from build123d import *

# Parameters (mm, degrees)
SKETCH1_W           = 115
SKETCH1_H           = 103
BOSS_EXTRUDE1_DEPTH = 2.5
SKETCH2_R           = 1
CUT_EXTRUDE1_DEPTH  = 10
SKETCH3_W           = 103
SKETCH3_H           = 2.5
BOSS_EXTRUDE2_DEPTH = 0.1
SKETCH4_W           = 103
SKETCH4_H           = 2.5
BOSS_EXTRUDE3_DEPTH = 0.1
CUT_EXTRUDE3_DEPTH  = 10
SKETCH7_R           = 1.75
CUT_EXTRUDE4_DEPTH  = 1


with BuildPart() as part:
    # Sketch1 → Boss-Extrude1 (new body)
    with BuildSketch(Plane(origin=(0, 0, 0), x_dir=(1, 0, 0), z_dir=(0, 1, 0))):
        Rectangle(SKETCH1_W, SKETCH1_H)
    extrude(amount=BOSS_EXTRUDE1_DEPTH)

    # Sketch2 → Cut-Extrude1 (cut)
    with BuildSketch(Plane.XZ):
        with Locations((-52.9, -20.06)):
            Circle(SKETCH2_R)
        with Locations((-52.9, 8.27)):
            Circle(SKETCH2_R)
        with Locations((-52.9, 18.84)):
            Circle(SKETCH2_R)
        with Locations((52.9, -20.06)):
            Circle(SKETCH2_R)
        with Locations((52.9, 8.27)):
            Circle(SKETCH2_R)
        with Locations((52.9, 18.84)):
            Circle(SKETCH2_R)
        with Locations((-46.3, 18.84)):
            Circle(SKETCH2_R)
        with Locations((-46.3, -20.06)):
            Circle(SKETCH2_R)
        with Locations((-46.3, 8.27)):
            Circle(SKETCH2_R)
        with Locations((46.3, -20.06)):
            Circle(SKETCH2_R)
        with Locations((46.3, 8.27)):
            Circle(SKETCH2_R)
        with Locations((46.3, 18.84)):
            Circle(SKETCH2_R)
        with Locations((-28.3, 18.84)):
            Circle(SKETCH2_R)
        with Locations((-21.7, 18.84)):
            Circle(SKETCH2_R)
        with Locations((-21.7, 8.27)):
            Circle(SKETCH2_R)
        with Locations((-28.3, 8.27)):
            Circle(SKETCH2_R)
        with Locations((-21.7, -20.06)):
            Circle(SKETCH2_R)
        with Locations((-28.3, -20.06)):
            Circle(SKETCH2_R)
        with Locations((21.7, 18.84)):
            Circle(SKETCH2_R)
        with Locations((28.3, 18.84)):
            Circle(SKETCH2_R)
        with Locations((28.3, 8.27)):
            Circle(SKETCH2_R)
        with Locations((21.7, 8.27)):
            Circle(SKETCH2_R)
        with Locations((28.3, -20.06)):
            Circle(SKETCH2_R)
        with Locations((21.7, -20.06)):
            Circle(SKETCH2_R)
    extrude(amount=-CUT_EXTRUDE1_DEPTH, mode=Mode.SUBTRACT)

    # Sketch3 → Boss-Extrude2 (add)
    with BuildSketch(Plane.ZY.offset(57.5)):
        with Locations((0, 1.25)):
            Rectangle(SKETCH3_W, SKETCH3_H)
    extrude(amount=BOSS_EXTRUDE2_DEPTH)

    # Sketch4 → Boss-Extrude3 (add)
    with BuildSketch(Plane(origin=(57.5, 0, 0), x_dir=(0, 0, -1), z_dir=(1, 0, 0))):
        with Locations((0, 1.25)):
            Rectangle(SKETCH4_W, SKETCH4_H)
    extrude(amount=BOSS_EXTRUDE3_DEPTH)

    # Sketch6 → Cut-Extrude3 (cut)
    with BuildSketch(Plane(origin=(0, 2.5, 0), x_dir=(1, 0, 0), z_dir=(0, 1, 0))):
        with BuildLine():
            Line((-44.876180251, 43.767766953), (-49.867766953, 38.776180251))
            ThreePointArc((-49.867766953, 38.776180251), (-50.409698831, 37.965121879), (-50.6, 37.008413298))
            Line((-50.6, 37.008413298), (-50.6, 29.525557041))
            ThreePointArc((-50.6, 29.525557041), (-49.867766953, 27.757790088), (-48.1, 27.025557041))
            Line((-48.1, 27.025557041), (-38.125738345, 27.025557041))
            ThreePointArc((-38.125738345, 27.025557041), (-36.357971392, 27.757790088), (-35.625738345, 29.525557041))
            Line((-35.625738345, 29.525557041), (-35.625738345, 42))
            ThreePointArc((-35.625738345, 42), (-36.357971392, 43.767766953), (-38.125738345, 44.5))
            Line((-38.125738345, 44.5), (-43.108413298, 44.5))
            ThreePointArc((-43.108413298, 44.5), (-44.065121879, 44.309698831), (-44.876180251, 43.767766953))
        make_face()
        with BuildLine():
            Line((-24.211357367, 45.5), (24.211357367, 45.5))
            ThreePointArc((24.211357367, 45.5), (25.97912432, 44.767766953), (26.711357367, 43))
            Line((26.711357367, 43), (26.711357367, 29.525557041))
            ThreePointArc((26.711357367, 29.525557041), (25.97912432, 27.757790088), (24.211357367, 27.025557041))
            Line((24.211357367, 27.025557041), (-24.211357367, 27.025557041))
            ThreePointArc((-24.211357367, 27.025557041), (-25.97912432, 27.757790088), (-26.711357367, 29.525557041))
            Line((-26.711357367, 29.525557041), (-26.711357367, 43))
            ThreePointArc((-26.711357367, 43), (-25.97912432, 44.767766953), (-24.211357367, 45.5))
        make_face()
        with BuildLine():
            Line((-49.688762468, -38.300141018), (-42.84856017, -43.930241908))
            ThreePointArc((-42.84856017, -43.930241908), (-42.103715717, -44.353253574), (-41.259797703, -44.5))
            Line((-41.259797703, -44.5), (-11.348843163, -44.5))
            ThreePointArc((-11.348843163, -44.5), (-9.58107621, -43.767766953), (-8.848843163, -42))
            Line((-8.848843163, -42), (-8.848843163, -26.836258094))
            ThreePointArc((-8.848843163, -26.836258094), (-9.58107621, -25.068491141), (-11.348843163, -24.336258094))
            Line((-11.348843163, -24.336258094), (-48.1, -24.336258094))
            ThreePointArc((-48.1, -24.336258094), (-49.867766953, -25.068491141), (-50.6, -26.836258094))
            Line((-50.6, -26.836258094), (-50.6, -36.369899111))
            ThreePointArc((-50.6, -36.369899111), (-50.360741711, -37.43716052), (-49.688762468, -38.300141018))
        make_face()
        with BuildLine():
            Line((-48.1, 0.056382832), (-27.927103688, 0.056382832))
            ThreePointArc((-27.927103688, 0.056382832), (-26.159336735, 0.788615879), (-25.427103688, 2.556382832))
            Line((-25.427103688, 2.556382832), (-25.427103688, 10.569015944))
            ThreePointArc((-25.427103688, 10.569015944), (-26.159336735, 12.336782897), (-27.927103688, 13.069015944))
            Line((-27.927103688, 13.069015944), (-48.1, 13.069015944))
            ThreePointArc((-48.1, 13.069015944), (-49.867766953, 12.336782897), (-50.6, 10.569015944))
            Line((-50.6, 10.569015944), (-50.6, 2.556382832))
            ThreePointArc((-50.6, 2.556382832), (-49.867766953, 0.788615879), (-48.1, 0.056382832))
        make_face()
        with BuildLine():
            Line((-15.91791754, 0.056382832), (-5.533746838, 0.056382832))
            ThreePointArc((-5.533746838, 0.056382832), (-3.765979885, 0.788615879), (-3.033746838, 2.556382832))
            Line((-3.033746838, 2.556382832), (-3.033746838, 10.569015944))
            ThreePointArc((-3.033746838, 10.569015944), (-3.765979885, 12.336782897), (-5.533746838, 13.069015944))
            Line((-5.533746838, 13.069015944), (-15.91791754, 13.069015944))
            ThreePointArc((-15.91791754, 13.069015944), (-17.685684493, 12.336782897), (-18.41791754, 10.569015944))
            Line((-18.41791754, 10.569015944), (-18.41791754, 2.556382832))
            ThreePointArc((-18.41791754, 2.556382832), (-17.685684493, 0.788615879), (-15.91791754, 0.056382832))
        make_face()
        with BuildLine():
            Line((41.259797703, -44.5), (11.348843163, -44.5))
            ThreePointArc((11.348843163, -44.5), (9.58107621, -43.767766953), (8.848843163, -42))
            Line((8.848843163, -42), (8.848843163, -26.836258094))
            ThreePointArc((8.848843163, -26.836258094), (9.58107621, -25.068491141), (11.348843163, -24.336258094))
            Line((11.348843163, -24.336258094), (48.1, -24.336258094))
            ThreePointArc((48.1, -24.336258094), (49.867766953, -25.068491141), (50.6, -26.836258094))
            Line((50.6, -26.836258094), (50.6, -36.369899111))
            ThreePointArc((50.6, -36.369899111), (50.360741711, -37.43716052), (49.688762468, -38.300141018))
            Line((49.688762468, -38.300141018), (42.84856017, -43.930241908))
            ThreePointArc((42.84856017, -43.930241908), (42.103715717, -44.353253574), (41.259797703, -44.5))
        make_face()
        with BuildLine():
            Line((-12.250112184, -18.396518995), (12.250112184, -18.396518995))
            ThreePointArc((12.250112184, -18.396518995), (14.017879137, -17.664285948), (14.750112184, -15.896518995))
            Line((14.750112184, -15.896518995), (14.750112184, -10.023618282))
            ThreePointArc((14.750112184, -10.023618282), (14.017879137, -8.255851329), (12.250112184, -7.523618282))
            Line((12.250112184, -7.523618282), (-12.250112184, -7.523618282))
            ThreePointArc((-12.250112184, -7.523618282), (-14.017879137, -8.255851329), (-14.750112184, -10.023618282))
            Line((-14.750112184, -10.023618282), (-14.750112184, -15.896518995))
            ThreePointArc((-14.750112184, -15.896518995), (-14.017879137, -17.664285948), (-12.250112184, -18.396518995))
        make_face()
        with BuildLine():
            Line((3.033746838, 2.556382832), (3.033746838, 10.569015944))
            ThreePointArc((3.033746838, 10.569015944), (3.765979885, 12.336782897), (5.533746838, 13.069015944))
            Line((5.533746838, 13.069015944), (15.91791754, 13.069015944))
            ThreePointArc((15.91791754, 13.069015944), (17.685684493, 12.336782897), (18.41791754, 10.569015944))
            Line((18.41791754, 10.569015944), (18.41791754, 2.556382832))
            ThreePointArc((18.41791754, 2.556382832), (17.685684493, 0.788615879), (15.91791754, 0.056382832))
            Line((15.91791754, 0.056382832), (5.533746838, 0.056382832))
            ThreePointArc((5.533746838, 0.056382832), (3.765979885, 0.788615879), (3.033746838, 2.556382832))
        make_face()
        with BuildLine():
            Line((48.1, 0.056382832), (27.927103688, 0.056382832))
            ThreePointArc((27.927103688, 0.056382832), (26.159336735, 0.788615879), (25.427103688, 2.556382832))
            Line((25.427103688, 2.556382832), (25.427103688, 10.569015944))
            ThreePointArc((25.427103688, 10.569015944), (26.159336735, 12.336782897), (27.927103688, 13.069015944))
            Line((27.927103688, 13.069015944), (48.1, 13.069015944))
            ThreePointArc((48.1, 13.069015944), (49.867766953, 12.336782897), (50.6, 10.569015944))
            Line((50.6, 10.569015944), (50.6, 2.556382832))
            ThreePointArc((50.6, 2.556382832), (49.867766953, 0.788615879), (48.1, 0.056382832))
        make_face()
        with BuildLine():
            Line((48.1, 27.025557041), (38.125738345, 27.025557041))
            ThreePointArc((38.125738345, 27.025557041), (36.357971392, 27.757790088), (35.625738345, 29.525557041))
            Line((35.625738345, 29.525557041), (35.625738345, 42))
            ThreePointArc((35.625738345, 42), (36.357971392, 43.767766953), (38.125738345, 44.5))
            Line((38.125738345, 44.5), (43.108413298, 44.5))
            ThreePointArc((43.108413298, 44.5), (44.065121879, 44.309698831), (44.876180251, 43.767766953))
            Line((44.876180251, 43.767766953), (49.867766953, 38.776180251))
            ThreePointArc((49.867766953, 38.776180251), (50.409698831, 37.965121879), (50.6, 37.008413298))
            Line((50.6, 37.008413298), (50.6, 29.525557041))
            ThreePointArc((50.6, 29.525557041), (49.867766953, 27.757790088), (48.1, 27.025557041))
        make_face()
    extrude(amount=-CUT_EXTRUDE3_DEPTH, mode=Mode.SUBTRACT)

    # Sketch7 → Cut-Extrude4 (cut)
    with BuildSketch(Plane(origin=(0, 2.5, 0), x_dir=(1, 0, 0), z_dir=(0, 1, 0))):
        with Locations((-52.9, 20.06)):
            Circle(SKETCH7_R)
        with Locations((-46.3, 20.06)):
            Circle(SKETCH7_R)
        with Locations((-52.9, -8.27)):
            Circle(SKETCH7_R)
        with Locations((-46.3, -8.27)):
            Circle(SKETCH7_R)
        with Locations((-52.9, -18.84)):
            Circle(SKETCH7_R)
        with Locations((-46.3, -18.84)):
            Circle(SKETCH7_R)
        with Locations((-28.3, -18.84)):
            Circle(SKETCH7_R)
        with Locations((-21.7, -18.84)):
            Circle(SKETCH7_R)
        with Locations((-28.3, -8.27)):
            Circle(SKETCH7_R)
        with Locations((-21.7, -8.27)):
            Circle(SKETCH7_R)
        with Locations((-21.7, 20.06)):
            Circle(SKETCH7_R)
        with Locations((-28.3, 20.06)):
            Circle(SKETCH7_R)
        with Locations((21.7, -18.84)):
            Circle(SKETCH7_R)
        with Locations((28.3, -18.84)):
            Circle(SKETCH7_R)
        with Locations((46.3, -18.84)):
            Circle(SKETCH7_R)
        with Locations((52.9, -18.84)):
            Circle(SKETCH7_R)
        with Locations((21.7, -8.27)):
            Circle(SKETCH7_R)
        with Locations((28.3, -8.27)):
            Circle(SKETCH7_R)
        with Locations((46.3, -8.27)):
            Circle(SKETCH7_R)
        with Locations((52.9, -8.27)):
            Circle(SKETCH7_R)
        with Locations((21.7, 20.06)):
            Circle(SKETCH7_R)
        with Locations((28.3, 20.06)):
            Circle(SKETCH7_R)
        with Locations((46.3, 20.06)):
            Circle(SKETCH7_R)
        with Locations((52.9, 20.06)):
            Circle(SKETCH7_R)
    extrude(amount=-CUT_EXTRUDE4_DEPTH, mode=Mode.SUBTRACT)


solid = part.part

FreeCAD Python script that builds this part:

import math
import FreeCAD as App
import Part
import Sketcher


def add_polygon(sketch, points):
    """Adds a closed chain of lines whose ends are joined by coincident constraints."""
    first, n = sketch.GeometryCount, len(points)
    for a, b in zip(points, points[1:] + points[:1]):
        sketch.addGeometry(Part.LineSegment(App.Vector(*a, 0), App.Vector(*b, 0)), False)
    for i in range(n):
        sketch.addConstraint(Sketcher.Constraint("Coincident", first + i, 2, first + (i + 1) % n, 1))

doc = App.newDocument("Part")
body = doc.addObject("PartDesign::Body", "Body")

sketch1 = body.newObject("Sketcher::SketchObject", "Sketch")
sketch1.AttachmentSupport = (doc.getObject("XZ_Plane"), [""])
sketch1.MapMode = "FlatFace"
add_polygon(sketch1, [(-58, -52), (-58, 52), (58, 52), (58, -52)])
sketch1.addConstraint(Sketcher.Constraint("Vertical", 0))
sketch1.addConstraint(Sketcher.Constraint("Horizontal", 1))
sketch1.addConstraint(Sketcher.Constraint("Vertical", 2))
sketch1.addConstraint(Sketcher.Constraint("Horizontal", 3))
sketch1.addConstraint(Sketcher.Constraint("Symmetric", 0, 2, 2, 2, -1, 1))
sketch1.addConstraint(Sketcher.Constraint("DistanceX", 1, 1, 1, 2, 115.0))
sketch1.addConstraint(Sketcher.Constraint("DistanceY", 0, 1, 0, 2, 103.0))
pad1 = body.newObject("PartDesign::Pad", "Pad")
pad1.Profile = sketch1
pad1.Length = 2.5
pad1.Reversed = True

sketch2 = body.newObject("Sketcher::SketchObject", "Sketch001")
sketch2.AttachmentSupport = (doc.getObject("XZ_Plane"), [""])
sketch2.MapMode = "FlatFace"
sketch2.addGeometry(Part.Circle(App.Vector(-52.9, -20.1, 0), App.Vector(0, 0, 1), 1), False)
sketch2.addGeometry(Part.Circle(App.Vector(-52.9, 8.3, 0), App.Vector(0, 0, 1), 1), False)
sketch2.addGeometry(Part.Circle(App.Vector(-52.9, 18.8, 0), App.Vector(0, 0, 1), 1), False)
sketch2.addGeometry(Part.Circle(App.Vector(52.9, -20.1, 0), App.Vector(0, 0, 1), 1), False)
sketch2.addGeometry(Part.Circle(App.Vector(52.9, 8.3, 0), App.Vector(0, 0, 1), 1), False)
sketch2.addGeometry(Part.Circle(App.Vector(52.9, 18.8, 0), App.Vector(0, 0, 1), 1), False)
sketch2.addGeometry(Part.Circle(App.Vector(-46.3, 18.8, 0), App.Vector(0, 0, 1), 1), False)
sketch2.addGeometry(Part.Circle(App.Vector(-46.3, -20.1, 0), App.Vector(0, 0, 1), 1), False)
sketch2.addGeometry(Part.Circle(App.Vector(-46.3, 8.3, 0), App.Vector(0, 0, 1), 1), False)
sketch2.addGeometry(Part.Circle(App.Vector(46.3, -20.1, 0), App.Vector(0, 0, 1), 1), False)
sketch2.addGeometry(Part.Circle(App.Vector(46.3, 8.3, 0), App.Vector(0, 0, 1), 1), False)
sketch2.addGeometry(Part.Circle(App.Vector(46.3, 18.8, 0), App.Vector(0, 0, 1), 1), False)
sketch2.addGeometry(Part.Circle(App.Vector(-28.3, 18.8, 0), App.Vector(0, 0, 1), 1), False)
sketch2.addGeometry(Part.Circle(App.Vector(-21.7, 18.8, 0), App.Vector(0, 0, 1), 1), False)
sketch2.addGeometry(Part.Circle(App.Vector(-21.7, 8.3, 0), App.Vector(0, 0, 1), 1), False)
sketch2.addGeometry(Part.Circle(App.Vector(-28.3, 8.3, 0), App.Vector(0, 0, 1), 1), False)
sketch2.addGeometry(Part.Circle(App.Vector(-21.7, -20.1, 0), App.Vector(0, 0, 1), 1), False)
sketch2.addGeometry(Part.Circle(App.Vector(-28.3, -20.1, 0), App.Vector(0, 0, 1), 1), False)
sketch2.addGeometry(Part.Circle(App.Vector(21.7, 18.8, 0), App.Vector(0, 0, 1), 1), False)
sketch2.addGeometry(Part.Circle(App.Vector(28.3, 18.8, 0), App.Vector(0, 0, 1), 1), False)
sketch2.addGeometry(Part.Circle(App.Vector(28.3, 8.3, 0), App.Vector(0, 0, 1), 1), False)
sketch2.addGeometry(Part.Circle(App.Vector(21.7, 8.3, 0), App.Vector(0, 0, 1), 1), False)
sketch2.addGeometry(Part.Circle(App.Vector(28.3, -20.1, 0), App.Vector(0, 0, 1), 1), False)
sketch2.addGeometry(Part.Circle(App.Vector(21.7, -20.1, 0), App.Vector(0, 0, 1), 1), False)
sketch2.addConstraint(Sketcher.Constraint("Equal", 0, 1))
sketch2.addConstraint(Sketcher.Constraint("Equal", 1, 2))
sketch2.addConstraint(Sketcher.Constraint("Equal", 2, 3))
sketch2.addConstraint(Sketcher.Constraint("Equal", 3, 4))
sketch2.addConstraint(Sketcher.Constraint("Equal", 4, 5))
sketch2.addConstraint(Sketcher.Constraint("Equal", 5, 6))
sketch2.addConstraint(Sketcher.Constraint("Equal", 6, 7))
sketch2.addConstraint(Sketcher.Constraint("Equal", 7, 8))
sketch2.addConstraint(Sketcher.Constraint("Equal", 8, 9))
sketch2.addConstraint(Sketcher.Constraint("Equal", 9, 10))
sketch2.addConstraint(Sketcher.Constraint("Equal", 10, 11))
sketch2.addConstraint(Sketcher.Constraint("Equal", 11, 12))
sketch2.addConstraint(Sketcher.Constraint("Equal", 12, 13))
sketch2.addConstraint(Sketcher.Constraint("Equal", 13, 14))
sketch2.addConstraint(Sketcher.Constraint("Equal", 14, 15))
sketch2.addConstraint(Sketcher.Constraint("Equal", 15, 16))
sketch2.addConstraint(Sketcher.Constraint("Equal", 16, 17))
sketch2.addConstraint(Sketcher.Constraint("Equal", 17, 18))
sketch2.addConstraint(Sketcher.Constraint("Equal", 18, 19))
sketch2.addConstraint(Sketcher.Constraint("Equal", 19, 20))
sketch2.addConstraint(Sketcher.Constraint("Equal", 20, 21))
sketch2.addConstraint(Sketcher.Constraint("Equal", 21, 22))
sketch2.addConstraint(Sketcher.Constraint("Equal", 22, 23))
sketch2.addConstraint(Sketcher.Constraint("Symmetric", 0, 3, 3, 3, -2))
sketch2.addConstraint(Sketcher.Constraint("Symmetric", 1, 3, 4, 3, -2))
sketch2.addConstraint(Sketcher.Constraint("Symmetric", 2, 3, 5, 3, -2))
sketch2.addConstraint(Sketcher.Constraint("Symmetric", 7, 3, 9, 3, -2))
sketch2.addConstraint(Sketcher.Constraint("Symmetric", 8, 3, 10, 3, -2))
sketch2.addConstraint(Sketcher.Constraint("Symmetric", 6, 3, 11, 3, -2))
sketch2.addConstraint(Sketcher.Constraint("Symmetric", 13, 3, 18, 3, -2))
sketch2.addConstraint(Sketcher.Constraint("Symmetric", 12, 3, 19, 3, -2))
sketch2.addConstraint(Sketcher.Constraint("Symmetric", 15, 3, 20, 3, -2))
sketch2.addConstraint(Sketcher.Constraint("Symmetric", 14, 3, 21, 3, -2))
sketch2.addConstraint(Sketcher.Constraint("Symmetric", 17, 3, 22, 3, -2))
sketch2.addConstraint(Sketcher.Constraint("Symmetric", 16, 3, 23, 3, -2))
sketch2.addConstraint(Sketcher.Constraint("Horizontal", 5, 3, 6, 3))
sketch2.addConstraint(Sketcher.Constraint("Horizontal", 3, 3, 7, 3))
sketch2.addConstraint(Sketcher.Constraint("Horizontal", 4, 3, 8, 3))
sketch2.addConstraint(Sketcher.Constraint("Horizontal", 11, 3, 12, 3))
sketch2.addConstraint(Sketcher.Constraint("Horizontal", 12, 3, 13, 3))
sketch2.addConstraint(Sketcher.Constraint("Horizontal", 10, 3, 14, 3))
sketch2.addConstraint(Sketcher.Constraint("Horizontal", 14, 3, 15, 3))
sketch2.addConstraint(Sketcher.Constraint("Horizontal", 9, 3, 16, 3))
sketch2.addConstraint(Sketcher.Constraint("Horizontal", 16, 3, 17, 3))
sketch2.addConstraint(Sketcher.Constraint("Vertical", 0, 3, 1, 3))
sketch2.addConstraint(Sketcher.Constraint("Vertical", 1, 3, 2, 3))
sketch2.addConstraint(Sketcher.Constraint("Vertical", 6, 3, 7, 3))
sketch2.addConstraint(Sketcher.Constraint("Vertical", 7, 3, 8, 3))
sketch2.addConstraint(Sketcher.Constraint("Vertical", 13, 3, 14, 3))
sketch2.addConstraint(Sketcher.Constraint("Vertical", 12, 3, 15, 3))
sketch2.addConstraint(Sketcher.Constraint("Vertical", 14, 3, 16, 3))
sketch2.addConstraint(Sketcher.Constraint("Vertical", 15, 3, 17, 3))
sketch2.addConstraint(Sketcher.Constraint("Diameter", 0, 2.0))
sketch2.addConstraint(Sketcher.Constraint("DistanceX", 6, 3, 12, 3, 18.0))
sketch2.addConstraint(Sketcher.Constraint("DistanceX", 0, 3, -1, 1, 52.9))
sketch2.addConstraint(Sketcher.Constraint("DistanceX", 6, 3, -1, 1, 46.3))
sketch2.addConstraint(Sketcher.Constraint("DistanceX", 13, 3, -1, 1, 21.7))
sketch2.addConstraint(Sketcher.Constraint("DistanceY", 0, 3, 2, 3, 38.9))
sketch2.addConstraint(Sketcher.Constraint("DistanceY", 0, 3, -1, 1, 20.06))
sketch2.addConstraint(Sketcher.Constraint("DistanceY", -1, 1, 1, 3, 8.27))
pocket1 = body.newObject("PartDesign::Pocket", "Pocket")
pocket1.Profile = sketch2
pocket1.Length = 10

sketch3 = body.newObject("Sketcher::SketchObject", "Sketch002")
sketch3.AttachmentSupport = (doc.getObject("YZ_Plane"), [""])
sketch3.MapMode = "FlatFace"
sketch3.AttachmentOffset = App.Placement(App.Vector(0, 0, -57.5), App.Rotation())
add_polygon(sketch3, [(2.5, -51.5), (0, -51.5), (0, 51.5), (2.5, 51.5)])
sketch3.addConstraint(Sketcher.Constraint("Horizontal", 0))
sketch3.addConstraint(Sketcher.Constraint("Vertical", 1))
sketch3.addConstraint(Sketcher.Constraint("Horizontal", 2))
sketch3.addConstraint(Sketcher.Constraint("Vertical", 3))
sketch3.addConstraint(Sketcher.Constraint("Symmetric", 0, 2, 1, 2, -1, 1))
sketch3.addConstraint(Sketcher.Constraint("DistanceY", 1, 1, 1, 2, 103.0))
sketch3.addConstraint(Sketcher.Constraint("DistanceX", 0, 2, 0, 1, 2.5))
pad2 = body.newObject("PartDesign::Pad", "Pad001")
pad2.Profile = sketch3
pad2.Length = 0.1
pad2.Reversed = True

sketch4 = body.newObject("Sketcher::SketchObject", "Sketch003")
sketch4.AttachmentSupport = (doc.getObject("YZ_Plane"), [""])
sketch4.MapMode = "FlatFace"
sketch4.AttachmentOffset = App.Placement(App.Vector(0, 0, 57.5), App.Rotation())
add_polygon(sketch4, [(2.5, 51.5), (0, 51.5), (0, -51.5), (2.5, -51.5)])
sketch4.addConstraint(Sketcher.Constraint("Horizontal", 0))
sketch4.addConstraint(Sketcher.Constraint("Vertical", 1))
sketch4.addConstraint(Sketcher.Constraint("Horizontal", 2))
sketch4.addConstraint(Sketcher.Constraint("Vertical", 3))
sketch4.addConstraint(Sketcher.Constraint("Symmetric", 0, 2, 1, 2, -1, 1))
sketch4.addConstraint(Sketcher.Constraint("DistanceY", 1, 2, 1, 1, 103.0))
sketch4.addConstraint(Sketcher.Constraint("DistanceX", 0, 2, 0, 1, 2.5))
pad3 = body.newObject("PartDesign::Pad", "Pad002")
pad3.Profile = sketch4
pad3.Length = 0.1

sketch5 = body.newObject("Sketcher::SketchObject", "Sketch004")
sketch5.AttachmentSupport = (doc.getObject("XZ_Plane"), [""])
sketch5.MapMode = "FlatFace"
sketch5.AttachmentOffset = App.Placement(App.Vector(0, 0, -2.5), App.Rotation())
sketch5.addGeometry(Part.LineSegment(App.Vector(-44.9, -43.8, 0), App.Vector(-49.9, -38.8, 0)), False)
sketch5.addGeometry(Part.ArcOfCircle(Part.Circle(App.Vector(-48.1, -37, 0), App.Vector(0, 0, 1), 2.5), math.radians(-180), math.radians(-135)), False)
sketch5.addGeometry(Part.LineSegment(App.Vector(-50.6, -37, 0), App.Vector(-50.6, -29.5, 0)), False)
sketch5.addGeometry(Part.ArcOfCircle(Part.Circle(App.Vector(-48.1, -29.5, 0), App.Vector(0, 0, 1), 2.5), math.radians(90), math.radians(180)), False)
sketch5.addGeometry(Part.LineSegment(App.Vector(-48.1, -27, 0), App.Vector(-38.1, -27, 0)), False)
sketch5.addGeometry(Part.ArcOfCircle(Part.Circle(App.Vector(-38.1, -29.5, 0), App.Vector(0, 0, 1), 2.5), math.radians(0), math.radians(90)), False)
sketch5.addGeometry(Part.LineSegment(App.Vector(-35.6, -29.5, 0), App.Vector(-35.6, -42, 0)), False)
sketch5.addGeometry(Part.ArcOfCircle(Part.Circle(App.Vector(-38.1, -42, 0), App.Vector(0, 0, 1), 2.5), math.radians(-90), math.radians(0)), False)
sketch5.addGeometry(Part.LineSegment(App.Vector(-38.1, -44.5, 0), App.Vector(-43.1, -44.5, 0)), False)
sketch5.addGeometry(Part.ArcOfCircle(Part.Circle(App.Vector(-43.1, -42, 0), App.Vector(0, 0, 1), 2.5), math.radians(-135), math.radians(-90)), False)
sketch5.addGeometry(Part.LineSegment(App.Vector(24.2, -45.5, 0), App.Vector(-24.2, -45.5, 0)), False)
sketch5.addGeometry(Part.ArcOfCircle(Part.Circle(App.Vector(-24.2, -43, 0), App.Vector(0, 0, 1), 2.5), math.radians(180), math.radians(270)), False)
sketch5.addGeometry(Part.LineSegment(App.Vector(-26.7, -43, 0), App.Vector(-26.7, -29.5, 0)), False)
sketch5.addGeometry(Part.ArcOfCircle(Part.Circle(App.Vector(-24.2, -29.5, 0), App.Vector(0, 0, 1), 2.5), math.radians(90), math.radians(180)), False)
sketch5.addGeometry(Part.LineSegment(App.Vector(-24.2, -27, 0), App.Vector(24.2, -27, 0)), False)
sketch5.addGeometry(Part.ArcOfCircle(Part.Circle(App.Vector(24.2, -29.5, 0), App.Vector(0, 0, 1), 2.5), math.radians(0), math.radians(90)), False)
sketch5.addGeometry(Part.LineSegment(App.Vector(26.7, -29.5, 0), App.Vector(26.7, -43, 0)), False)
sketch5.addGeometry(Part.ArcOfCircle(Part.Circle(App.Vector(24.2, -43, 0), App.Vector(0, 0, 1), 2.5), math.radians(-90), math.radians(0)), False)
sketch5.addGeometry(Part.LineSegment(App.Vector(-49.7, 38.3, 0), App.Vector(-42.8, 43.9, 0)), False)
sketch5.addGeometry(Part.ArcOfCircle(Part.Circle(App.Vector(-41.3, 42, 0), App.Vector(0, 0, 1), 2.5), math.radians(90), math.radians(129)), False)
sketch5.addGeometry(Part.LineSegment(App.Vector(-41.3, 44.5, 0), App.Vector(-11.3, 44.5, 0)), False)
sketch5.addGeometry(Part.ArcOfCircle(Part.Circle(App.Vector(-11.3, 42, 0), App.Vector(0, 0, 1), 2.5), math.radians(0), math.radians(90)), False)
sketch5.addGeometry(Part.LineSegment(App.Vector(-8.8, 42, 0), App.Vector(-8.8, 26.8, 0)), False)
sketch5.addGeometry(Part.ArcOfCircle(Part.Circle(App.Vector(-11.3, 26.8, 0), App.Vector(0, 0, 1), 2.5), math.radians(-90), math.radians(0)), False)
sketch5.addGeometry(Part.LineSegment(App.Vector(-11.3, 24.3, 0), App.Vector(-48.1, 24.3, 0)), False)
sketch5.addGeometry(Part.ArcOfCircle(Part.Circle(App.Vector(-48.1, 26.8, 0), App.Vector(0, 0, 1), 2.5), math.radians(180), math.radians(270)), False)
sketch5.addGeometry(Part.LineSegment(App.Vector(-50.6, 26.8, 0), App.Vector(-50.6, 36.4, 0)), False)
sketch5.addGeometry(Part.ArcOfCircle(Part.Circle(App.Vector(-48.1, 36.4, 0), App.Vector(0, 0, 1), 2.5), math.radians(129), math.radians(180)), False)
sketch5.addGeometry(Part.LineSegment(App.Vector(-48.1, -0.1, 0), App.Vector(-27.9, -0.1, 0)), False)
sketch5.addGeometry(Part.ArcOfCircle(Part.Circle(App.Vector(-27.9, -2.6, 0), App.Vector(0, 0, 1), 2.5), math.radians(0), math.radians(90)), False)
sketch5.addGeometry(Part.LineSegment(App.Vector(-25.4, -2.6, 0), App.Vector(-25.4, -10.6, 0)), False)
sketch5.addGeometry(Part.ArcOfCircle(Part.Circle(App.Vector(-27.9, -10.6, 0), App.Vector(0, 0, 1), 2.5), math.radians(-90), math.radians(0)), False)
sketch5.addGeometry(Part.LineSegment(App.Vector(-27.9, -13.1, 0), App.Vector(-48.1, -13.1, 0)), False)
sketch5.addGeometry(Part.ArcOfCircle(Part.Circle(App.Vector(-48.1, -10.6, 0), App.Vector(0, 0, 1), 2.5), math.radians(180), math.radians(270)), False)
sketch5.addGeometry(Part.LineSegment(App.Vector(-50.6, -10.6, 0), App.Vector(-50.6, -2.6, 0)), False)
sketch5.addGeometry(Part.ArcOfCircle(Part.Circle(App.Vector(-48.1, -2.6, 0), App.Vector(0, 0, 1), 2.5), math.radians(90), math.radians(180)), False)
sketch5.addGeometry(Part.LineSegment(App.Vector(-15.9, -0.1, 0), App.Vector(-5.5, -0.1, 0)), False)
sketch5.addGeometry(Part.ArcOfCircle(Part.Circle(App.Vector(-5.5, -2.6, 0), App.Vector(0, 0, 1), 2.5), math.radians(0), math.radians(90)), False)
sketch5.addGeometry(Part.LineSegment(App.Vector(-3, -2.6, 0), App.Vector(-3, -10.6, 0)), False)
sketch5.addGeometry(Part.ArcOfCircle(Part.Circle(App.Vector(-5.5, -10.6, 0), App.Vector(0, 0, 1), 2.5), math.radians(-90), math.radians(0)), False)
sketch5.addGeometry(Part.LineSegment(App.Vector(-5.5, -13.1, 0), App.Vector(-15.9, -13.1, 0)), False)
sketch5.addGeometry(Part.ArcOfCircle(Part.Circle(App.Vector(-15.9, -10.6, 0), App.Vector(0, 0, 1), 2.5), math.radians(180), math.radians(270)), False)
sketch5.addGeometry(Part.LineSegment(App.Vector(-18.4, -10.6, 0), App.Vector(-18.4, -2.6, 0)), False)
sketch5.addGeometry(Part.ArcOfCircle(Part.Circle(App.Vector(-15.9, -2.6, 0), App.Vector(0, 0, 1), 2.5), math.radians(90), math.radians(180)), False)
sketch5.addGeometry(Part.LineSegment(App.Vector(11.3, 44.5, 0), App.Vector(41.3, 44.5, 0)), False)
sketch5.addGeometry(Part.ArcOfCircle(Part.Circle(App.Vector(41.3, 42, 0), App.Vector(0, 0, 1), 2.5), math.radians(51), math.radians(90)), False)
sketch5.addGeometry(Part.LineSegment(App.Vector(42.8, 43.9, 0), App.Vector(49.7, 38.3, 0)), False)
sketch5.addGeometry(Part.ArcOfCircle(Part.Circle(App.Vector(48.1, 36.4, 0), App.Vector(0, 0, 1), 2.5), math.radians(0), math.radians(51)), False)
sketch5.addGeometry(Part.LineSegment(App.Vector(50.6, 36.4, 0), App.Vector(50.6, 26.8, 0)), False)
sketch5.addGeometry(Part.ArcOfCircle(Part.Circle(App.Vector(48.1, 26.8, 0), App.Vector(0, 0, 1), 2.5), math.radians(-90), math.radians(0)), False)
sketch5.addGeometry(Part.LineSegment(App.Vector(48.1, 24.3, 0), App.Vector(11.3, 24.3, 0)), False)
sketch5.addGeometry(Part.ArcOfCircle(Part.Circle(App.Vector(11.3, 26.8, 0), App.Vector(0, 0, 1), 2.5), math.radians(180), math.radians(270)), False)
sketch5.addGeometry(Part.LineSegment(App.Vector(8.8, 26.8, 0), App.Vector(8.8, 42, 0)), False)
sketch5.addGeometry(Part.ArcOfCircle(Part.Circle(App.Vector(11.3, 42, 0), App.Vector(0, 0, 1), 2.5), math.radians(90), math.radians(180)), False)
sketch5.addGeometry(Part.LineSegment(App.Vector(-12.3, 18.4, 0), App.Vector(12.3, 18.4, 0)), False)
sketch5.addGeometry(Part.ArcOfCircle(Part.Circle(App.Vector(12.3, 15.9, 0), App.Vector(0, 0, 1), 2.5), math.radians(0), math.radians(90)), False)
sketch5.addGeometry(Part.LineSegment(App.Vector(14.8, 15.9, 0), App.Vector(14.8, 10, 0)), False)
sketch5.addGeometry(Part.ArcOfCircle(Part.Circle(App.Vector(12.3, 10, 0), App.Vector(0, 0, 1), 2.5), math.radians(-90), math.radians(0)), False)
sketch5.addGeometry(Part.LineSegment(App.Vector(12.3, 7.5, 0), App.Vector(-12.3, 7.5, 0)), False)
sketch5.addGeometry(Part.ArcOfCircle(Part.Circle(App.Vector(-12.3, 10, 0), App.Vector(0, 0, 1), 2.5), math.radians(180), math.radians(270)), False)
sketch5.addGeometry(Part.LineSegment(App.Vector(-14.8, 10, 0), App.Vector(-14.8, 15.9, 0)), False)
sketch5.addGeometry(Part.ArcOfCircle(Part.Circle(App.Vector(-12.3, 15.9, 0), App.Vector(0, 0, 1), 2.5), math.radians(90), math.radians(180)), False)
sketch5.addGeometry(Part.LineSegment(App.Vector(3, -10.6, 0), App.Vector(3, -2.6, 0)), False)
sketch5.addGeometry(Part.ArcOfCircle(Part.Circle(App.Vector(5.5, -2.6, 0), App.Vector(0, 0, 1), 2.5), math.radians(90), math.radians(180)), False)
sketch5.addGeometry(Part.LineSegment(App.Vector(5.5, -0.1, 0), App.Vector(15.9, -0.1, 0)), False)
sketch5.addGeometry(Part.ArcOfCircle(Part.Circle(App.Vector(15.9, -2.6, 0), App.Vector(0, 0, 1), 2.5), math.radians(0), math.radians(90)), False)
sketch5.addGeometry(Part.LineSegment(App.Vector(18.4, -2.6, 0), App.Vector(18.4, -10.6, 0)), False)
sketch5.addGeometry(Part.ArcOfCircle(Part.Circle(App.Vector(15.9, -10.6, 0), App.Vector(0, 0, 1), 2.5), math.radians(-90), math.radians(0)), False)
sketch5.addGeometry(Part.LineSegment(App.Vector(15.9, -13.1, 0), App.Vector(5.5, -13.1, 0)), False)
sketch5.addGeometry(Part.ArcOfCircle(Part.Circle(App.Vector(5.5, -10.6, 0), App.Vector(0, 0, 1), 2.5), math.radians(180), math.radians(270)), False)
sketch5.addGeometry(Part.LineSegment(App.Vector(27.9, -0.1, 0), App.Vector(48.1, -0.1, 0)), False)
sketch5.addGeometry(Part.ArcOfCircle(Part.Circle(App.Vector(48.1, -2.6, 0), App.Vector(0, 0, 1), 2.5), math.radians(0), math.radians(90)), False)
sketch5.addGeometry(Part.LineSegment(App.Vector(50.6, -2.6, 0), App.Vector(50.6, -10.6, 0)), False)
sketch5.addGeometry(Part.ArcOfCircle(Part.Circle(App.Vector(48.1, -10.6, 0), App.Vector(0, 0, 1), 2.5), math.radians(-90), math.radians(0)), False)
sketch5.addGeometry(Part.LineSegment(App.Vector(48.1, -13.1, 0), App.Vector(27.9, -13.1, 0)), False)
sketch5.addGeometry(Part.ArcOfCircle(Part.Circle(App.Vector(27.9, -10.6, 0), App.Vector(0, 0, 1), 2.5), math.radians(180), math.radians(270)), False)
sketch5.addGeometry(Part.LineSegment(App.Vector(25.4, -10.6, 0), App.Vector(25.4, -2.6, 0)), False)
sketch5.addGeometry(Part.ArcOfCircle(Part.Circle(App.Vector(27.9, -2.6, 0), App.Vector(0, 0, 1), 2.5), math.radians(90), math.radians(180)), False)
sketch5.addGeometry(Part.LineSegment(App.Vector(38.1, -27, 0), App.Vector(48.1, -27, 0)), False)
sketch5.addGeometry(Part.ArcOfCircle(Part.Circle(App.Vector(48.1, -29.5, 0), App.Vector(0, 0, 1), 2.5), math.radians(0), math.radians(90)), False)
sketch5.addGeometry(Part.LineSegment(App.Vector(50.6, -29.5, 0), App.Vector(50.6, -37, 0)), False)
sketch5.addGeometry(Part.ArcOfCircle(Part.Circle(App.Vector(48.1, -37, 0), App.Vector(0, 0, 1), 2.5), math.radians(-45), math.radians(0)), False)
sketch5.addGeometry(Part.LineSegment(App.Vector(49.9, -38.8, 0), App.Vector(44.9, -43.8, 0)), False)
sketch5.addGeometry(Part.ArcOfCircle(Part.Circle(App.Vector(43.1, -42, 0), App.Vector(0, 0, 1), 2.5), math.radians(-90), math.radians(-45)), False)
sketch5.addGeometry(Part.LineSegment(App.Vector(43.1, -44.5, 0), App.Vector(38.1, -44.5, 0)), False)
sketch5.addGeometry(Part.ArcOfCircle(Part.Circle(App.Vector(38.1, -42, 0), App.Vector(0, 0, 1), 2.5), math.radians(180), math.radians(270)), False)
sketch5.addGeometry(Part.LineSegment(App.Vector(35.6, -42, 0), App.Vector(35.6, -29.5, 0)), False)
sketch5.addGeometry(Part.ArcOfCircle(Part.Circle(App.Vector(38.1, -29.5, 0), App.Vector(0, 0, 1), 2.5), math.radians(90), math.radians(180)), False)
sketch5.addConstraint(Sketcher.Constraint("Tangent", 0, 2, 1, 2))
sketch5.addConstraint(Sketcher.Constraint("Tangent", 1, 1, 2, 1))
sketch5.addConstraint(Sketcher.Constraint("Tangent", 2, 2, 3, 2))
sketch5.addConstraint(Sketcher.Constraint("Tangent", 3, 1, 4, 1))
sketch5.addConstraint(Sketcher.Constraint("Tangent", 4, 2, 5, 2))
sketch5.addConstraint(Sketcher.Constraint("Tangent", 5, 1, 6, 1))
sketch5.addConstraint(Sketcher.Constraint("Tangent", 6, 2, 7, 2))
sketch5.addConstraint(Sketcher.Constraint("Tangent", 7, 1, 8, 1))
sketch5.addConstraint(Sketcher.Constraint("Tangent", 8, 2, 9, 2))
sketch5.addConstraint(Sketcher.Constraint("Tangent", 9, 1, 0, 1))
sketch5.addConstraint(Sketcher.Constraint("Tangent", 10, 2, 11, 2))
sketch5.addConstraint(Sketcher.Constraint("Tangent", 11, 1, 12, 1))
sketch5.addConstraint(Sketcher.Constraint("Tangent", 12, 2, 13, 2))
sketch5.addConstraint(Sketcher.Constraint("Tangent", 13, 1, 14, 1))
sketch5.addConstraint(Sketcher.Constraint("Tangent", 14, 2, 15, 2))
sketch5.addConstraint(Sketcher.Constraint("Tangent", 15, 1, 16, 1))
sketch5.addConstraint(Sketcher.Constraint("Tangent", 16, 2, 17, 2))
sketch5.addConstraint(Sketcher.Constraint("Tangent", 17, 1, 10, 1))
sketch5.addConstraint(Sketcher.Constraint("Tangent", 18, 2, 19, 2))
sketch5.addConstraint(Sketcher.Constraint("Tangent", 19, 1, 20, 1))
sketch5.addConstraint(Sketcher.Constraint("Tangent", 20, 2, 21, 2))
sketch5.addConstraint(Sketcher.Constraint("Tangent", 21, 1, 22, 1))
sketch5.addConstraint(Sketcher.Constraint("Tangent", 22, 2, 23, 2))
sketch5.addConstraint(Sketcher.Constraint("Tangent", 23, 1, 24, 1))
sketch5.addConstraint(Sketcher.Constraint("Tangent", 24, 2, 25, 2))
sketch5.addConstraint(Sketcher.Constraint("Tangent", 25, 1, 26, 1))
sketch5.addConstraint(Sketcher.Constraint("Tangent", 26, 2, 27, 2))
sketch5.addConstraint(Sketcher.Constraint("Tangent", 27, 1, 18, 1))
sketch5.addConstraint(Sketcher.Constraint("Tangent", 28, 2, 29, 2))
sketch5.addConstraint(Sketcher.Constraint("Tangent", 29, 1, 30, 1))
sketch5.addConstraint(Sketcher.Constraint("Tangent", 30, 2, 31, 2))
sketch5.addConstraint(Sketcher.Constraint("Tangent", 31, 1, 32, 1))
sketch5.addConstraint(Sketcher.Constraint("Tangent", 32, 2, 33, 2))
sketch5.addConstraint(Sketcher.Constraint("Tangent", 33, 1, 34, 1))
sketch5.addConstraint(Sketcher.Constraint("Tangent", 34, 2, 35, 2))
sketch5.addConstraint(Sketcher.Constraint("Tangent", 35, 1, 28, 1))
sketch5.addConstraint(Sketcher.Constraint("Tangent", 36, 2, 37, 2))
sketch5.addConstraint(Sketcher.Constraint("Tangent", 37, 1, 38, 1))
sketch5.addConstraint(Sketcher.Constraint("Tangent", 38, 2, 39, 2))
sketch5.addConstraint(Sketcher.Constraint("Tangent", 39, 1, 40, 1))
sketch5.addConstraint(Sketcher.Constraint("Tangent", 40, 2, 41, 2))
sketch5.addConstraint(Sketcher.Constraint("Tangent", 41, 1, 42, 1))
sketch5.addConstraint(Sketcher.Constraint("Tangent", 42, 2, 43, 2))
sketch5.addConstraint(Sketcher.Constraint("Tangent", 43, 1, 36, 1))
sketch5.addConstraint(Sketcher.Constraint("Tangent", 44, 2, 45, 2))
sketch5.addConstraint(Sketcher.Constraint("Tangent", 45, 1, 46, 1))
sketch5.addConstraint(Sketcher.Constraint("Tangent", 46, 2, 47, 2))
sketch5.addConstraint(Sketcher.Constraint("Tangent", 47, 1, 48, 1))
sketch5.addConstraint(Sketcher.Constraint("Tangent", 48, 2, 49, 2))
sketch5.addConstraint(Sketcher.Constraint("Tangent", 49, 1, 50, 1))
sketch5.addConstraint(Sketcher.Constraint("Tangent", 50, 2, 51, 2))
sketch5.addConstraint(Sketcher.Constraint("Tangent", 51, 1, 52, 1))
sketch5.addConstraint(Sketcher.Constraint("Tangent", 52, 2, 53, 2))
sketch5.addConstraint(Sketcher.Constraint("Tangent", 53, 1, 44, 1))
sketch5.addConstraint(Sketcher.Constraint("Tangent", 54, 2, 55, 2))
sketch5.addConstraint(Sketcher.Constraint("Tangent", 55, 1, 56, 1))
sketch5.addConstraint(Sketcher.Constraint("Tangent", 56, 2, 57, 2))
sketch5.addConstraint(Sketcher.Constraint("Tangent", 57, 1, 58, 1))
sketch5.addConstraint(Sketcher.Constraint("Tangent", 58, 2, 59, 2))
sketch5.addConstraint(Sketcher.Constraint("Tangent", 59, 1, 60, 1))
sketch5.addConstraint(Sketcher.Constraint("Tangent", 60, 2, 61, 2))
sketch5.addConstraint(Sketcher.Constraint("Tangent", 61, 1, 54, 1))
sketch5.addConstraint(Sketcher.Constraint("Tangent", 62, 2, 63, 2))
sketch5.addConstraint(Sketcher.Constraint("Tangent", 63, 1, 64, 1))
sketch5.addConstraint(Sketcher.Constraint("Tangent", 64, 2, 65, 2))
sketch5.addConstraint(Sketcher.Constraint("Tangent", 65, 1, 66, 1))
sketch5.addConstraint(Sketcher.Constraint("Tangent", 66, 2, 67, 2))
sketch5.addConstraint(Sketcher.Constraint("Tangent", 67, 1, 68, 1))
sketch5.addConstraint(Sketcher.Constraint("Tangent", 68, 2, 69, 2))
sketch5.addConstraint(Sketcher.Constraint("Tangent", 69, 1, 62, 1))
sketch5.addConstraint(Sketcher.Constraint("Tangent", 70, 2, 71, 2))
sketch5.addConstraint(Sketcher.Constraint("Tangent", 71, 1, 72, 1))
sketch5.addConstraint(Sketcher.Constraint("Tangent", 72, 2, 73, 2))
sketch5.addConstraint(Sketcher.Constraint("Tangent", 73, 1, 74, 1))
sketch5.addConstraint(Sketcher.Constraint("Tangent", 74, 2, 75, 2))
sketch5.addConstraint(Sketcher.Constraint("Tangent", 75, 1, 76, 1))
sketch5.addConstraint(Sketcher.Constraint("Tangent", 76, 2, 77, 2))
sketch5.addConstraint(Sketcher.Constraint("Tangent", 77, 1, 70, 1))
sketch5.addConstraint(Sketcher.Constraint("Tangent", 78, 2, 79, 2))
sketch5.addConstraint(Sketcher.Constraint("Tangent", 79, 1, 80, 1))
sketch5.addConstraint(Sketcher.Constraint("Tangent", 80, 2, 81, 2))
sketch5.addConstraint(Sketcher.Constraint("Tangent", 81, 1, 82, 1))
sketch5.addConstraint(Sketcher.Constraint("Tangent", 82, 2, 83, 2))
sketch5.addConstraint(Sketcher.Constraint("Tangent", 83, 1, 84, 1))
sketch5.addConstraint(Sketcher.Constraint("Tangent", 84, 2, 85, 2))
sketch5.addConstraint(Sketcher.Constraint("Tangent", 85, 1, 86, 1))
sketch5.addConstraint(Sketcher.Constraint("Tangent", 86, 2, 87, 2))
sketch5.addConstraint(Sketcher.Constraint("Tangent", 87, 1, 78, 1))
sketch5.addConstraint(Sketcher.Constraint("Vertical", 2))
sketch5.addConstraint(Sketcher.Constraint("Horizontal", 4))
sketch5.addConstraint(Sketcher.Constraint("Vertical", 6))
sketch5.addConstraint(Sketcher.Constraint("Horizontal", 8))
sketch5.addConstraint(Sketcher.Constraint("Horizontal", 10))
sketch5.addConstraint(Sketcher.Constraint("Vertical", 12))
sketch5.addConstraint(Sketcher.Constraint("Horizontal", 14))
sketch5.addConstraint(Sketcher.Constraint("Vertical", 16))
sketch5.addConstraint(Sketcher.Constraint("Horizontal", 20))
sketch5.addConstraint(Sketcher.Constraint("Vertical", 22))
sketch5.addConstraint(Sketcher.Constraint("Horizontal", 24))
sketch5.addConstraint(Sketcher.Constraint("Vertical", 26))
sketch5.addConstraint(Sketcher.Constraint("Horizontal", 28))
sketch5.addConstraint(Sketcher.Constraint("Vertical", 30))
sketch5.addConstraint(Sketcher.Constraint("Horizontal", 32))
sketch5.addConstraint(Sketcher.Constraint("Vertical", 34))
sketch5.addConstraint(Sketcher.Constraint("Horizontal", 36))
sketch5.addConstraint(Sketcher.Constraint("Vertical", 38))
sketch5.addConstraint(Sketcher.Constraint("Horizontal", 40))
sketch5.addConstraint(Sketcher.Constraint("Vertical", 42))
sketch5.addConstraint(Sketcher.Constraint("Horizontal", 44))
sketch5.addConstraint(Sketcher.Constraint("Vertical", 48))
sketch5.addConstraint(Sketcher.Constraint("Horizontal", 50))
sketch5.addConstraint(Sketcher.Constraint("Vertical", 52))
sketch5.addConstraint(Sketcher.Constraint("Horizontal", 54))
sketch5.addConstraint(Sketcher.Constraint("Vertical", 56))
sketch5.addConstraint(Sketcher.Constraint("Horizontal", 58))
sketch5.addConstraint(Sketcher.Constraint("Vertical", 60))
sketch5.addConstraint(Sketcher.Constraint("Vertical", 62))
sketch5.addConstraint(Sketcher.Constraint("Horizontal", 64))
sketch5.addConstraint(Sketcher.Constraint("Vertical", 66))
sketch5.addConstraint(Sketcher.Constraint("Horizontal", 68))
sketch5.addConstraint(Sketcher.Constraint("Horizontal", 70))
sketch5.addConstraint(Sketcher.Constraint("Vertical", 72))
sketch5.addConstraint(Sketcher.Constraint("Horizontal", 74))
sketch5.addConstraint(Sketcher.Constraint("Vertical", 76))
sketch5.addConstraint(Sketcher.Constraint("Horizontal", 78))
sketch5.addConstraint(Sketcher.Constraint("Vertical", 80))
sketch5.addConstraint(Sketcher.Constraint("Horizontal", 84))
sketch5.addConstraint(Sketcher.Constraint("Vertical", 86))
sketch5.addConstraint(Sketcher.Constraint("Equal", 1, 3))
sketch5.addConstraint(Sketcher.Constraint("Equal", 3, 5))
sketch5.addConstraint(Sketcher.Constraint("Equal", 5, 7))
sketch5.addConstraint(Sketcher.Constraint("Equal", 7, 9))
sketch5.addConstraint(Sketcher.Constraint("Equal", 9, 11))
sketch5.addConstraint(Sketcher.Constraint("Equal", 11, 13))
sketch5.addConstraint(Sketcher.Constraint("Equal", 13, 15))
sketch5.addConstraint(Sketcher.Constraint("Equal", 15, 17))
sketch5.addConstraint(Sketcher.Constraint("Equal", 17, 19))
sketch5.addConstraint(Sketcher.Constraint("Equal", 19, 21))
sketch5.addConstraint(Sketcher.Constraint("Equal", 21, 23))
sketch5.addConstraint(Sketcher.Constraint("Equal", 23, 25))
sketch5.addConstraint(Sketcher.Constraint("Equal", 25, 27))
sketch5.addConstraint(Sketcher.Constraint("Equal", 27, 29))
sketch5.addConstraint(Sketcher.Constraint("Equal", 29, 31))
sketch5.addConstraint(Sketcher.Constraint("Equal", 31, 33))
sketch5.addConstraint(Sketcher.Constraint("Equal", 33, 35))
sketch5.addConstraint(Sketcher.Constraint("Equal", 35, 37))
sketch5.addConstraint(Sketcher.Constraint("Equal", 37, 39))
sketch5.addConstraint(Sketcher.Constraint("Equal", 39, 41))
sketch5.addConstraint(Sketcher.Constraint("Equal", 41, 43))
sketch5.addConstraint(Sketcher.Constraint("Equal", 43, 45))
sketch5.addConstraint(Sketcher.Constraint("Equal", 45, 47))
sketch5.addConstraint(Sketcher.Constraint("Equal", 47, 49))
sketch5.addConstraint(Sketcher.Constraint("Equal", 49, 51))
sketch5.addConstraint(Sketcher.Constraint("Equal", 51, 53))
sketch5.addConstraint(Sketcher.Constraint("Equal", 53, 55))
sketch5.addConstraint(Sketcher.Constraint("Equal", 55, 57))
sketch5.addConstraint(Sketcher.Constraint("Equal", 57, 59))
sketch5.addConstraint(Sketcher.Constraint("Equal", 59, 61))
sketch5.addConstraint(Sketcher.Constraint("Equal", 61, 63))
sketch5.addConstraint(Sketcher.Constraint("Equal", 63, 65))
sketch5.addConstraint(Sketcher.Constraint("Equal", 65, 67))
sketch5.addConstraint(Sketcher.Constraint("Equal", 67, 69))
sketch5.addConstraint(Sketcher.Constraint("Equal", 69, 71))
sketch5.addConstraint(Sketcher.Constraint("Equal", 71, 73))
sketch5.addConstraint(Sketcher.Constraint("Equal", 73, 75))
sketch5.addConstraint(Sketcher.Constraint("Equal", 75, 77))
sketch5.addConstraint(Sketcher.Constraint("Equal", 77, 79))
sketch5.addConstraint(Sketcher.Constraint("Equal", 79, 81))
sketch5.addConstraint(Sketcher.Constraint("Equal", 81, 83))
sketch5.addConstraint(Sketcher.Constraint("Equal", 83, 85))
sketch5.addConstraint(Sketcher.Constraint("Equal", 85, 87))
sketch5.addConstraint(Sketcher.Constraint("Symmetric", 19, 3, 45, 3, -2))
sketch5.addConstraint(Sketcher.Constraint("Symmetric", 27, 3, 47, 3, -2))
sketch5.addConstraint(Sketcher.Constraint("Symmetric", 23, 3, 51, 3, -2))
sketch5.addConstraint(Sketcher.Constraint("Symmetric", 37, 3, 63, 3, -2))
sketch5.addConstraint(Sketcher.Constraint("Symmetric", 41, 3, 67, 3, -2))
sketch5.addConstraint(Sketcher.Constraint("Symmetric", 35, 3, 71, 3, -2))
sketch5.addConstraint(Sketcher.Constraint("Symmetric", 31, 3, 75, 3, -2))
sketch5.addConstraint(Sketcher.Constraint("Symmetric", 3, 3, 79, 3, -2))
sketch5.addConstraint(Sketcher.Constraint("Symmetric", 9, 3, 83, 3, -2))
sketch5.addConstraint(Sketcher.Constraint("Perpendicular", 0, 82))
sketch5.addConstraint(Sketcher.Constraint("Horizontal", 5, 3, 13, 3))
sketch5.addConstraint(Sketcher.Constraint("Horizontal", 35, 3, 37, 3))
sketch5.addConstraint(Sketcher.Constraint("Horizontal", 33, 3, 39, 3))
sketch5.addConstraint(Sketcher.Constraint("Horizontal", 1, 3, 81, 3))
sketch5.addConstraint(Sketcher.Constraint("Vertical", 3, 3, 25, 3))
sketch5.addConstraint(Sketcher.Constraint("Vertical", 27, 3, 33, 3))
sketch5.addConstraint(Sketcher.Constraint("Equal", 4, 78))
sketch5.addConstraint(Sketcher.Constraint("Radius", 1, 2.5))
sketch5.addConstraint(Sketcher.Constraint("DistanceY", 7, 3, -1, 1, 42.0))
sketch5.addConstraint(Sketcher.Constraint("DistanceY", 11, 3, -1, 1, 43.0))
sketch5.addConstraint(Sketcher.Constraint("DistanceY", -1, 1, 19, 3, 42.0))
sketch5.addConstraint(Sketcher.Constraint("DistanceX", 1, 3, -1, 1, 48.1))
sketch5.addConstraint(Sketcher.Constraint("DistanceY", 56, 2, 56, 1, 5.872901))
sketch5.addConstraint(Sketcher.Constraint("DistanceX", 4, 1, 4, 2, 9.974262))
sketch5.addConstraint(Sketcher.Constraint("DistanceX", 36, 1, 36, 2, 10.384171))
sketch5.addConstraint(Sketcher.Constraint("DistanceY", 22, 2, 22, 1, 15.163742))
sketch5.addConstraint(Sketcher.Constraint("DistanceY", 26, 1, 26, 2, 9.533641))
sketch5.addConstraint(Sketcher.Constraint("Distance", 0, 7.05917))
sketch5.addConstraint(Sketcher.Constraint("DistanceX", 10, 2, 10, 1, 48.422715))
sketch5.addConstraint(Sketcher.Constraint("DistanceX", 20, 1, 20, 2, 29.910955))
sketch5.addConstraint(Sketcher.Constraint("DistanceX", 24, 2, 24, 1, 36.751157))
sketch5.addConstraint(Sketcher.Constraint("DistanceX", 28, 1, 28, 2, 20.172896))
sketch5.addConstraint(Sketcher.Constraint("DistanceX", 54, 1, 54, 2, 24.500224))
sketch5.addConstraint(Sketcher.Constraint("DistanceY", 2, 1, 2, 2, 7.482856))
sketch5.addConstraint(Sketcher.Constraint("DistanceY", 30, 2, 30, 1, 8.012633))
sketch5.addConstraint(Sketcher.Constraint("DistanceY", -1, 1, 55, 3, 15.896519))
sketch5.addConstraint(Sketcher.Constraint("DistanceX", 11, 3, -1, 1, 24.211357))
sketch5.addConstraint(Sketcher.Constraint("DistanceY", 29, 3, -1, 1, 2.556383))
sketch5.addConstraint(Sketcher.Constraint("DistanceX", 37, 3, -1, 1, 5.533747))
sketch5.addConstraint(Sketcher.Constraint("DistanceX", -1, 1, 55, 3, 12.250112))
pocket2 = body.newObject("PartDesign::Pocket", "Pocket001")
pocket2.Profile = sketch5
pocket2.Length = 10
pocket2.Reversed = True

sketch6 = body.newObject("Sketcher::SketchObject", "Sketch005")
sketch6.AttachmentSupport = (doc.getObject("XZ_Plane"), [""])
sketch6.MapMode = "FlatFace"
sketch6.AttachmentOffset = App.Placement(App.Vector(0, 0, -2.5), App.Rotation())
sketch6.addGeometry(Part.Circle(App.Vector(-52.9, -20.1, 0), App.Vector(0, 0, 1), 1.8), False)
sketch6.addGeometry(Part.Circle(App.Vector(-46.3, -20.1, 0), App.Vector(0, 0, 1), 1.8), False)
sketch6.addGeometry(Part.Circle(App.Vector(-52.9, 8.3, 0), App.Vector(0, 0, 1), 1.8), False)
sketch6.addGeometry(Part.Circle(App.Vector(-46.3, 8.3, 0), App.Vector(0, 0, 1), 1.8), False)
sketch6.addGeometry(Part.Circle(App.Vector(-52.9, 18.8, 0), App.Vector(0, 0, 1), 1.8), False)
sketch6.addGeometry(Part.Circle(App.Vector(-46.3, 18.8, 0), App.Vector(0, 0, 1), 1.8), False)
sketch6.addGeometry(Part.Circle(App.Vector(-28.3, 18.8, 0), App.Vector(0, 0, 1), 1.8), False)
sketch6.addGeometry(Part.Circle(App.Vector(-21.7, 18.8, 0), App.Vector(0, 0, 1), 1.8), False)
sketch6.addGeometry(Part.Circle(App.Vector(-28.3, 8.3, 0), App.Vector(0, 0, 1), 1.8), False)
sketch6.addGeometry(Part.Circle(App.Vector(-21.7, 8.3, 0), App.Vector(0, 0, 1), 1.8), False)
sketch6.addGeometry(Part.Circle(App.Vector(-21.7, -20.1, 0), App.Vector(0, 0, 1), 1.8), False)
sketch6.addGeometry(Part.Circle(App.Vector(-28.3, -20.1, 0), App.Vector(0, 0, 1), 1.8), False)
sketch6.addGeometry(Part.Circle(App.Vector(21.7, 18.8, 0), App.Vector(0, 0, 1), 1.8), False)
sketch6.addGeometry(Part.Circle(App.Vector(28.3, 18.8, 0), App.Vector(0, 0, 1), 1.8), False)
sketch6.addGeometry(Part.Circle(App.Vector(46.3, 18.8, 0), App.Vector(0, 0, 1), 1.8), False)
sketch6.addGeometry(Part.Circle(App.Vector(52.9, 18.8, 0), App.Vector(0, 0, 1), 1.8), False)
sketch6.addGeometry(Part.Circle(App.Vector(21.7, 8.3, 0), App.Vector(0, 0, 1), 1.8), False)
sketch6.addGeometry(Part.Circle(App.Vector(28.3, 8.3, 0), App.Vector(0, 0, 1), 1.8), False)
sketch6.addGeometry(Part.Circle(App.Vector(46.3, 8.3, 0), App.Vector(0, 0, 1), 1.8), False)
sketch6.addGeometry(Part.Circle(App.Vector(52.9, 8.3, 0), App.Vector(0, 0, 1), 1.8), False)
sketch6.addGeometry(Part.Circle(App.Vector(21.7, -20.1, 0), App.Vector(0, 0, 1), 1.8), False)
sketch6.addGeometry(Part.Circle(App.Vector(28.3, -20.1, 0), App.Vector(0, 0, 1), 1.8), False)
sketch6.addGeometry(Part.Circle(App.Vector(46.3, -20.1, 0), App.Vector(0, 0, 1), 1.8), False)
sketch6.addGeometry(Part.Circle(App.Vector(52.9, -20.1, 0), App.Vector(0, 0, 1), 1.8), False)
sketch6.addConstraint(Sketcher.Constraint("Equal", 0, 1))
sketch6.addConstraint(Sketcher.Constraint("Equal", 1, 2))
sketch6.addConstraint(Sketcher.Constraint("Equal", 2, 3))
sketch6.addConstraint(Sketcher.Constraint("Equal", 3, 4))
sketch6.addConstraint(Sketcher.Constraint("Equal", 4, 5))
sketch6.addConstraint(Sketcher.Constraint("Equal", 5, 6))
sketch6.addConstraint(Sketcher.Constraint("Equal", 6, 7))
sketch6.addConstraint(Sketcher.Constraint("Equal", 7, 8))
sketch6.addConstraint(Sketcher.Constraint("Equal", 8, 9))
sketch6.addConstraint(Sketcher.Constraint("Equal", 9, 10))
sketch6.addConstraint(Sketcher.Constraint("Equal", 10, 11))
sketch6.addConstraint(Sketcher.Constraint("Equal", 11, 12))
sketch6.addConstraint(Sketcher.Constraint("Equal", 12, 13))
sketch6.addConstraint(Sketcher.Constraint("Equal", 13, 14))
sketch6.addConstraint(Sketcher.Constraint("Equal", 14, 15))
sketch6.addConstraint(Sketcher.Constraint("Equal", 15, 16))
sketch6.addConstraint(Sketcher.Constraint("Equal", 16, 17))
sketch6.addConstraint(Sketcher.Constraint("Equal", 17, 18))
sketch6.addConstraint(Sketcher.Constraint("Equal", 18, 19))
sketch6.addConstraint(Sketcher.Constraint("Equal", 19, 20))
sketch6.addConstraint(Sketcher.Constraint("Equal", 20, 21))
sketch6.addConstraint(Sketcher.Constraint("Equal", 21, 22))
sketch6.addConstraint(Sketcher.Constraint("Equal", 22, 23))
sketch6.addConstraint(Sketcher.Constraint("Symmetric", 7, 3, 12, 3, -2))
sketch6.addConstraint(Sketcher.Constraint("Symmetric", 6, 3, 13, 3, -2))
sketch6.addConstraint(Sketcher.Constraint("Symmetric", 5, 3, 14, 3, -2))
sketch6.addConstraint(Sketcher.Constraint("Symmetric", 4, 3, 15, 3, -2))
sketch6.addConstraint(Sketcher.Constraint("Symmetric", 9, 3, 16, 3, -2))
sketch6.addConstraint(Sketcher.Constraint("Symmetric", 8, 3, 17, 3, -2))
sketch6.addConstraint(Sketcher.Constraint("Symmetric", 3, 3, 18, 3, -2))
sketch6.addConstraint(Sketcher.Constraint("Symmetric", 2, 3, 19, 3, -2))
sketch6.addConstraint(Sketcher.Constraint("Symmetric", 10, 3, 20, 3, -2))
sketch6.addConstraint(Sketcher.Constraint("Symmetric", 11, 3, 21, 3, -2))
sketch6.addConstraint(Sketcher.Constraint("Symmetric", 1, 3, 22, 3, -2))
sketch6.addConstraint(Sketcher.Constraint("Symmetric", 0, 3, 23, 3, -2))
sketch6.addConstraint(Sketcher.Constraint("Horizontal", 0, 3, 1, 3))
sketch6.addConstraint(Sketcher.Constraint("Horizontal", 2, 3, 3, 3))
sketch6.addConstraint(Sketcher.Constraint("Horizontal", 4, 3, 5, 3))
sketch6.addConstraint(Sketcher.Constraint("Horizontal", 5, 3, 6, 3))
sketch6.addConstraint(Sketcher.Constraint("Horizontal", 6, 3, 7, 3))
sketch6.addConstraint(Sketcher.Constraint("Horizontal", 3, 3, 8, 3))
sketch6.addConstraint(Sketcher.Constraint("Horizontal", 8, 3, 9, 3))
sketch6.addConstraint(Sketcher.Constraint("Horizontal", 1, 3, 10, 3))
sketch6.addConstraint(Sketcher.Constraint("Horizontal", 10, 3, 11, 3))
sketch6.addConstraint(Sketcher.Constraint("Vertical", 0, 3, 2, 3))
sketch6.addConstraint(Sketcher.Constraint("Vertical", 1, 3, 3, 3))
sketch6.addConstraint(Sketcher.Constraint("Vertical", 2, 3, 4, 3))
sketch6.addConstraint(Sketcher.Constraint("Vertical", 3, 3, 5, 3))
sketch6.addConstraint(Sketcher.Constraint("Vertical", 6, 3, 8, 3))
sketch6.addConstraint(Sketcher.Constraint("Vertical", 7, 3, 9, 3))
sketch6.addConstraint(Sketcher.Constraint("Vertical", 9, 3, 10, 3))
sketch6.addConstraint(Sketcher.Constraint("Vertical", 8, 3, 11, 3))
sketch6.addConstraint(Sketcher.Constraint("Diameter", 0, 3.5))
sketch6.addConstraint(Sketcher.Constraint("DistanceX", 5, 3, 6, 3, 18.0))
sketch6.addConstraint(Sketcher.Constraint("DistanceX", 6, 3, 12, 3, 50.0))
sketch6.addConstraint(Sketcher.Constraint("DistanceX", 0, 3, -1, 1, 52.9))
sketch6.addConstraint(Sketcher.Constraint("DistanceX", 1, 3, -1, 1, 46.3))
sketch6.addConstraint(Sketcher.Constraint("DistanceY", 0, 3, 4, 3, 38.9))
sketch6.addConstraint(Sketcher.Constraint("DistanceY", 0, 3, -1, 1, 20.06))
sketch6.addConstraint(Sketcher.Constraint("DistanceY", -1, 1, 2, 3, 8.27))
pocket3 = body.newObject("PartDesign::Pocket", "Pocket002")
pocket3.Profile = sketch6
pocket3.Length = 1
pocket3.Reversed = True

doc.recompute()
